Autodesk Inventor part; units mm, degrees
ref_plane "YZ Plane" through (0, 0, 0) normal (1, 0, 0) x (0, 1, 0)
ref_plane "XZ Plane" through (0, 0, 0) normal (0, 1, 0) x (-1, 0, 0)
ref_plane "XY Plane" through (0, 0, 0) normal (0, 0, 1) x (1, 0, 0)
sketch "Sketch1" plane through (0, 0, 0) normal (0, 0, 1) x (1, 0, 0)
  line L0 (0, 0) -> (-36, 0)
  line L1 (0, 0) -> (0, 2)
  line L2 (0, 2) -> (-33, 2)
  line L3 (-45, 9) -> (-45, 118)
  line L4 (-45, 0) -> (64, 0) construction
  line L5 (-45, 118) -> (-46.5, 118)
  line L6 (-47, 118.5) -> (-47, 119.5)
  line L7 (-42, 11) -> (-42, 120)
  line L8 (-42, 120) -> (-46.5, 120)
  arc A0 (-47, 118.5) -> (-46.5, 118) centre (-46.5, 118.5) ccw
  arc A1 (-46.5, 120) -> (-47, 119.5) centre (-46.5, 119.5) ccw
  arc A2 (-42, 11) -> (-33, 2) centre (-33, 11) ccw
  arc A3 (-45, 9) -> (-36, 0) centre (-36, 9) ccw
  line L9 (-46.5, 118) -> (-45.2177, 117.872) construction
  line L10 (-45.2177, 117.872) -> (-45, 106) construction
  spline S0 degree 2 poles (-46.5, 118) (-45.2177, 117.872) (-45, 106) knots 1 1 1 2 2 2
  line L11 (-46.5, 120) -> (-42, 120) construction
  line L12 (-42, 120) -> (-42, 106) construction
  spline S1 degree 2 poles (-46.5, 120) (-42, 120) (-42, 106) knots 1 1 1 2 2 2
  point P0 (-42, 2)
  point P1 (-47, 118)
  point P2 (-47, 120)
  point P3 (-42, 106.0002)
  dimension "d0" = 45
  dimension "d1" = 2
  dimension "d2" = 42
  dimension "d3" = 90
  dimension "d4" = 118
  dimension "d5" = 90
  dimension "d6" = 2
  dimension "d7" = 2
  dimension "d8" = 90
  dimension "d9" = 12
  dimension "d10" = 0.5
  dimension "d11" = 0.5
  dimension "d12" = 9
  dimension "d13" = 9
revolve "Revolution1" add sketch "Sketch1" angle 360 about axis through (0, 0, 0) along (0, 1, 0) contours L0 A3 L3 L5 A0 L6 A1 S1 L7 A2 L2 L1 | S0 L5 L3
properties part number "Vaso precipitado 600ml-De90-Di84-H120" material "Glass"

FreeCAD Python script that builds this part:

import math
import FreeCAD as App
import Part
import Sketcher
Q = App.Units.Quantity

doc = App.newDocument("Part")
body = doc.addObject("PartDesign::Body", "Body")

# Sketch on XY plane
sketch1 = body.newObject("Sketcher::SketchObject", "Sketch")
sketch1.AttachmentSupport = (doc.getObject("XY_Plane"), [""])
sketch1.MapMode = "FlatFace"
sketch1.addGeometry([
    Part.LineSegment(App.Vector(-36, 0, 0), App.Vector(0, 0, 0)),  # 0
    Part.LineSegment(App.Vector(0, 0, 0), App.Vector(0, 2, 0)),  # 1
    Part.LineSegment(App.Vector(0, 2, 0), App.Vector(-33, 2, 0)),  # 2
    Part.ArcOfCircle(Part.Circle(App.Vector(-33, 11, 0), App.Vector(0, 0, 1), 9), math.radians(180), math.radians(270)),  # 3
    Part.LineSegment(App.Vector(-42, 11, 0), App.Vector(-42, 106, 0)),  # 4
    Part.BSplineCurve([App.Vector(-46.5, 120, 0), App.Vector(-42, 120, 0), App.Vector(-42, 106, 0)], [3, 3], [1, 2], False, 2, [1, 1, 1], False),  # 5
    Part.ArcOfCircle(Part.Circle(App.Vector(-46.5, 119.5, 0), App.Vector(0, 0, 1), 0.5), math.radians(90), math.radians(180)),  # 6
    Part.LineSegment(App.Vector(-47, 119.5, 0), App.Vector(-47, 118.5, 0)),  # 7
    Part.ArcOfCircle(Part.Circle(App.Vector(-46.5, 118.5, 0), App.Vector(0, 0, 1), 0.5), math.radians(180), math.radians(270)),  # 8
    Part.BSplineCurve([App.Vector(-46.5, 118, 0), App.Vector(-45.2177, 117.872, 0), App.Vector(-45, 106, 0)], [3, 3], [1, 2], False, 2, [1, 1, 1], False),  # 9
    Part.LineSegment(App.Vector(-45, 106, 0), App.Vector(-45, 9, 0)),  # 10
    Part.ArcOfCircle(Part.Circle(App.Vector(-36, 9, 0), App.Vector(0, 0, 1), 9), math.radians(180), math.radians(270)),  # 11
], False)
sketch1.addConstraint([
    Sketcher.Constraint("Block", 5),
    Sketcher.Constraint("Block", 9),
    Sketcher.Constraint("Coincident", 0, 2, 1, 1),
    Sketcher.Constraint("Coincident", 1, 2, 2, 1),
    Sketcher.Constraint("Tangent", 2, 2, 3, 2),
    Sketcher.Constraint("Tangent", 3, 1, 4, 1),
    Sketcher.Constraint("Coincident", 4, 2, 5, 2),
    Sketcher.Constraint("Coincident", 5, 1, 6, 1),
    Sketcher.Constraint("Tangent", 6, 2, 7, 1),
    Sketcher.Constraint("Tangent", 7, 2, 8, 1),
    Sketcher.Constraint("Coincident", 8, 2, 9, 1),
    Sketcher.Constraint("Coincident", 9, 2, 10, 1),
    Sketcher.Constraint("Tangent", 10, 2, 11, 1),
    Sketcher.Constraint("Tangent", 11, 2, 0, 1),
    Sketcher.Constraint("Horizontal", 0),
    Sketcher.Constraint("Vertical", 1),
    Sketcher.Constraint("Horizontal", 2),
    Sketcher.Constraint("Vertical", 4),
    Sketcher.Constraint("Vertical", 7),
    Sketcher.Constraint("Vertical", 10),
    Sketcher.Constraint("Coincident", 0, 2, -1, 1),
    Sketcher.Constraint("Equal", 6, 8),
    Sketcher.Constraint("Equal", 3, 11),
    Sketcher.Constraint("Vertical", 6, 3, 8, 2),
    Sketcher.Constraint("Radius", 3, Q("9 mm")),
    Sketcher.Constraint("Radius", 6, Q("0.5 mm")),
    Sketcher.Constraint("DistanceY", 1, 1, 1, 2, Q("2 mm")),
])
revolution = body.newObject("PartDesign::Revolution", "Revolution")
revolution.Profile = sketch1
revolution.ReferenceAxis = (sketch1, ["V_Axis"])
revolution.Angle = 360

doc.recompute()
